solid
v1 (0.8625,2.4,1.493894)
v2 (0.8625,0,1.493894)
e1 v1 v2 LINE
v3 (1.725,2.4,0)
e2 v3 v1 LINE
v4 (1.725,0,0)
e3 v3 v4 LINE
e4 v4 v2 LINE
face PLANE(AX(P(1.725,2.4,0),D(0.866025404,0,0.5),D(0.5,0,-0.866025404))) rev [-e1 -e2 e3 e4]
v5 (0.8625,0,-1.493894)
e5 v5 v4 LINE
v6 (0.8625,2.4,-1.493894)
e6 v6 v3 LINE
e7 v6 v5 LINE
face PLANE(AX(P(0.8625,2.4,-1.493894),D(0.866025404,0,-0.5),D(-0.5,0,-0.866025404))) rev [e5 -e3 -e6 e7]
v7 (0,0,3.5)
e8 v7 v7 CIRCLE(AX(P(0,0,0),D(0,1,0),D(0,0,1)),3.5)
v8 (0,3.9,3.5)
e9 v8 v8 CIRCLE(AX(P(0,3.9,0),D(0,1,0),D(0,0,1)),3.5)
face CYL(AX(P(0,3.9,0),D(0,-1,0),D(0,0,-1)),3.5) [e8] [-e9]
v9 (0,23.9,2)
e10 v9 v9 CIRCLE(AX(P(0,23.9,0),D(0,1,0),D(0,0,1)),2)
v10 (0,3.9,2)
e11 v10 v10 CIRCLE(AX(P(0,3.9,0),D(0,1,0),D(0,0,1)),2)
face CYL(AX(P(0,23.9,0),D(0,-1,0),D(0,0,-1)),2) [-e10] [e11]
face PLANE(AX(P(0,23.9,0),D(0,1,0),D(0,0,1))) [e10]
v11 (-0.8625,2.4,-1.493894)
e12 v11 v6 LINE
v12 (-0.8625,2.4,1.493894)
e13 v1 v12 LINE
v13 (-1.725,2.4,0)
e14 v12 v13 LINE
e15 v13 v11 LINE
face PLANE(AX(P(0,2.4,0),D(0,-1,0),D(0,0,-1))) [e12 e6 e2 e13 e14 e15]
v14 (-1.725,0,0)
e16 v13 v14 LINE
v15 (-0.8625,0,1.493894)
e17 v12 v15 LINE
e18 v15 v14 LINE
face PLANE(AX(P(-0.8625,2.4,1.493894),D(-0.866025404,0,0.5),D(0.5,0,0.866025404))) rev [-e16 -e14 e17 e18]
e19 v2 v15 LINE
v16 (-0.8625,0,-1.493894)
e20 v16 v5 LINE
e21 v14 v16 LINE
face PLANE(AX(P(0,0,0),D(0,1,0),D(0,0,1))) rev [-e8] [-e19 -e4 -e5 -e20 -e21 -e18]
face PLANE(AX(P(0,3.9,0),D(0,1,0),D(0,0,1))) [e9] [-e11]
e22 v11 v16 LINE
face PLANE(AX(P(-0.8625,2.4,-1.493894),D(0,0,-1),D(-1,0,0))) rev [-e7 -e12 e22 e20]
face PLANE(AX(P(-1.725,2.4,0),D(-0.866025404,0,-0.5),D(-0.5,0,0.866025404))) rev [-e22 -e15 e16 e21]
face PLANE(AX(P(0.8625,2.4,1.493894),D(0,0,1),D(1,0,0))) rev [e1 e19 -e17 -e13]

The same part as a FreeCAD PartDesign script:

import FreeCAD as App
import Part
import Sketcher
from FreeCAD import Vector
Q = App.Units.Quantity


def add_polygon(sketch, points):
    """Adds a closed chain of lines whose ends are joined by coincident constraints."""
    first, n = sketch.GeometryCount, len(points)
    for a, b in zip(points, points[1:] + points[:1]):
        sketch.addGeometry(Part.LineSegment(App.Vector(*a, 0), App.Vector(*b, 0)), False)
    for i in range(n):
        sketch.addConstraint(Sketcher.Constraint("Coincident", first + i, 2, first + (i + 1) % n, 1))

doc = App.newDocument("Part")
body = doc.addObject("PartDesign::Body", "Body")

# Sketch on XZ plane
sketch1 = doc.addObject("Sketcher::SketchObject", "Sketch")
body.addObject(sketch1)
sketch1.AttachmentSupport = (doc.XZ_Plane, [""])
sketch1.MapMode = "FlatFace"
sketch1.addGeometry(Part.Circle(Vector(0, 0, 0), Vector(0, 0, 1), 3.5), False)
sketch1.addConstraint([
    Sketcher.Constraint("Coincident", 0, 3, -1, 1),
    Sketcher.Constraint("Diameter", 0, 7.0),
])
pad1 = doc.addObject("PartDesign::Pad", "Pad")
body.addObject(pad1)
pad1.Profile = sketch1
pad1.Length = 3.9
pad1.Reversed = True

# Sketch on XZ plane
sketch2 = doc.addObject("Sketcher::SketchObject", "Sketch001")
body.addObject(sketch2)
sketch2.AttachmentSupport = (doc.XZ_Plane, [""])
sketch2.MapMode = "FlatFace"
sketch2.AttachmentOffset = App.Placement(Vector(0, 0, -3.9), App.Rotation())
sketch2.addGeometry(Part.Circle(Vector(0, 0, 0), Vector(0, 0, 1), 2), False)
sketch2.addConstraint([
    Sketcher.Constraint("Coincident", 0, 3, -1, 1),
    Sketcher.Constraint("Diameter", 0, 4.0),
])
pad2 = doc.addObject("PartDesign::Pad", "Pad001")
body.addObject(pad2)
pad2.Profile = sketch2
pad2.Length = 20
pad2.Reversed = True

# Sketch on XZ plane
sketch3 = doc.addObject("Sketcher::SketchObject", "Sketch002")
body.addObject(sketch3)
sketch3.AttachmentSupport = (doc.XZ_Plane, [""])
sketch3.MapMode = "FlatFace"
add_polygon(sketch3, [(1.7, 0), (0.9, 1.5), (-0.9, 1.5), (-1.7, 0), (-0.9, -1.5), (0.9, -1.5)])  # lines 0-5
sketch3.addConstraint([
    Sketcher.Constraint("Horizontal", 1),
    Sketcher.Constraint("Horizontal", 4),
    Sketcher.Constraint("Symmetric", 0, 2, 3, 2, -1, 1),
    Sketcher.Constraint("Symmetric", 2, 2, 5, 2, -1, 1),
    Sketcher.Constraint("PointOnObject", 2, 2, -1),
    Sketcher.Constraint("Parallel", 2, 5),
    Sketcher.Constraint("Vertical", 1, 2, 3, 2),
    Sketcher.Constraint("Angle", 0, Q("120 deg")),
    Sketcher.Constraint("DistanceX", 1, 2, 1, 1, 1.725),
    Sketcher.Constraint("DistanceX", 2, 2, 5, 2, 3.45),
])
pocket1 = doc.addObject("PartDesign::Pocket", "Pocket")
body.addObject(pocket1)
pocket1.Profile = sketch3
pocket1.Length = 2.4

doc.recompute()
